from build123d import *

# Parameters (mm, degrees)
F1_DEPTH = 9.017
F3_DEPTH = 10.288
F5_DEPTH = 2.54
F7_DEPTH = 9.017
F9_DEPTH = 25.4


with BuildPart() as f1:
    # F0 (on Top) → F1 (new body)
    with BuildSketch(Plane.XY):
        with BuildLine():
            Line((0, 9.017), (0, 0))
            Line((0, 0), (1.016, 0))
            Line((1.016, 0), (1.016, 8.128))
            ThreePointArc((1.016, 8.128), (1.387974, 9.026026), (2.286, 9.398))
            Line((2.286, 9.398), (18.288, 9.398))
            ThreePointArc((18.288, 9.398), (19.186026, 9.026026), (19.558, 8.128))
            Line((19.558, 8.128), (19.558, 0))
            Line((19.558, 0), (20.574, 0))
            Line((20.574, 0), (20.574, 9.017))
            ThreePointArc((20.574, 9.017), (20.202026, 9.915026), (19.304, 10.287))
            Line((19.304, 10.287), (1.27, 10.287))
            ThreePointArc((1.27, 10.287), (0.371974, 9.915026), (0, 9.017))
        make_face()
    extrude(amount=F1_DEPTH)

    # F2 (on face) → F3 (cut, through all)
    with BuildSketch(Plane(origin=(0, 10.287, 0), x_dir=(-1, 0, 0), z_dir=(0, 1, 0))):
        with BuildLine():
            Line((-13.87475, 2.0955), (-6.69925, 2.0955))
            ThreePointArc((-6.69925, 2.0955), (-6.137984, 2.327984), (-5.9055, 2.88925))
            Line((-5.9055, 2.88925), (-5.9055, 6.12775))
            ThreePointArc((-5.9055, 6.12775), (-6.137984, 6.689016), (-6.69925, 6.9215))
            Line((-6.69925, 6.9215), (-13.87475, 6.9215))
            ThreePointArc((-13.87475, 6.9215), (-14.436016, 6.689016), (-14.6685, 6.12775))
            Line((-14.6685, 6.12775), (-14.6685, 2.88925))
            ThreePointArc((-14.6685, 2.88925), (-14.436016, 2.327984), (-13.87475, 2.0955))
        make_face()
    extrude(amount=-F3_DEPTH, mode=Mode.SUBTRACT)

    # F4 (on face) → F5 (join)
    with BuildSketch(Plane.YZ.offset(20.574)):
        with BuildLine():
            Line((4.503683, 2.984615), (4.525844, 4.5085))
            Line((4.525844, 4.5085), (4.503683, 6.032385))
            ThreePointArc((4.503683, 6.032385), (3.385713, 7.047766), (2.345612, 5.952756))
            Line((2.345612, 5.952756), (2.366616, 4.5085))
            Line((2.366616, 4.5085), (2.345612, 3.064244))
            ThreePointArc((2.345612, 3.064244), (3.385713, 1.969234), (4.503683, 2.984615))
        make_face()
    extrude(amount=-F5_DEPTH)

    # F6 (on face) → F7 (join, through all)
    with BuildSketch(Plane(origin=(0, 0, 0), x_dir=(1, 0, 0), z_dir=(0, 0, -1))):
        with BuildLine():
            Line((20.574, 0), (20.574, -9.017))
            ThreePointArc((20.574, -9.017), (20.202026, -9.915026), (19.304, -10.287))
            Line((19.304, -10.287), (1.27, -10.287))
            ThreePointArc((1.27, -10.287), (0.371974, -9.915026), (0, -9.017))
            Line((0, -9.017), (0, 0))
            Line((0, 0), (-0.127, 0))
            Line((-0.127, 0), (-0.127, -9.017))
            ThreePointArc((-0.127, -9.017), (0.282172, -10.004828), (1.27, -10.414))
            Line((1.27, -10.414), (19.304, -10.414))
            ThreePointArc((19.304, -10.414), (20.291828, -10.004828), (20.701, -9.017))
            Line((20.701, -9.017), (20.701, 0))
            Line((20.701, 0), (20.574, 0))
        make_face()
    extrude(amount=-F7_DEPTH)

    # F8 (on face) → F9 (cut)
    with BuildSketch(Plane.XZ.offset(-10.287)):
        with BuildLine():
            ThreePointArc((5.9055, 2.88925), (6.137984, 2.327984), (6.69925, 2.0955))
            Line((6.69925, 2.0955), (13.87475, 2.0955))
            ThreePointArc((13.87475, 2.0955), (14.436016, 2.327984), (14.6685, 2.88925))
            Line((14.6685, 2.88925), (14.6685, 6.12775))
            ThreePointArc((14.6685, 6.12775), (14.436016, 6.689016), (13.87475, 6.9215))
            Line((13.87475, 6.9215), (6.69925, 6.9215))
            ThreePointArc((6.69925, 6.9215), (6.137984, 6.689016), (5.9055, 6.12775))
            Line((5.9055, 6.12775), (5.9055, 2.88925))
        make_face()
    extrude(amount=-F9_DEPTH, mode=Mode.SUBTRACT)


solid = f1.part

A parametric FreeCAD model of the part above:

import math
import FreeCAD as App
import Part
import Sketcher

V = App.Vector
Q = App.Units.Quantity

doc = App.newDocument("Part")
body = doc.addObject("PartDesign::Body", "Body")

# Sketch on XY plane
sketch1 = body.newObject("Sketcher::SketchObject", "Sketch")
sketch1.AttachmentSupport = (doc.getObject("XY_Plane"), [""])
sketch1.MapMode = "FlatFace"
sketch1.addGeometry(Part.LineSegment(V(0, 9.017, 0), V(0, 0, 0)), False)
sketch1.addGeometry(Part.LineSegment(V(0, 0, 0), V(1.016, 0, 0)), False)
sketch1.addGeometry(Part.LineSegment(V(1.016, 0, 0), V(1.016, 8.128, 0)), False)
sketch1.addGeometry(Part.ArcOfCircle(Part.Circle(V(2.285999, 8.128001, 0), V(0, 0, 1), 1.269999), math.radians(89.99994), math.radians(180.00006)), False)
sketch1.addGeometry(Part.LineSegment(V(2.286, 9.398, 0), V(18.288, 9.398, 0)), False)
sketch1.addGeometry(Part.ArcOfCircle(Part.Circle(V(18.288001, 8.128001, 0), V(0, 0, 1), 1.269999), math.radians(-0.00006), math.radians(90.00006)), False)
sketch1.addGeometry(Part.LineSegment(V(19.558, 8.128, 0), V(19.558, 0, 0)), False)
sketch1.addGeometry(Part.LineSegment(V(19.558, 0, 0), V(20.574, 0, 0)), False)
sketch1.addGeometry(Part.LineSegment(V(20.574, 0, 0), V(20.574, 9.017, 0)), False)
sketch1.addGeometry(Part.ArcOfCircle(Part.Circle(V(19.304001, 9.017001, 0), V(0, 0, 1), 1.269999), math.radians(-0.00006), math.radians(90.00006)), False)
sketch1.addGeometry(Part.LineSegment(V(19.304, 10.287, 0), V(1.27, 10.287, 0)), False)
sketch1.addGeometry(Part.ArcOfCircle(Part.Circle(V(1.269999, 9.017001, 0), V(0, 0, 1), 1.269999), math.radians(89.99994), math.radians(180.00006)), False)
sketch1.addConstraint(Sketcher.Constraint("Coincident", 0, 2, 1, 1))
sketch1.addConstraint(Sketcher.Constraint("Coincident", 1, 2, 2, 1))
sketch1.addConstraint(Sketcher.Constraint("Tangent", 2, 2, 3, 2))
sketch1.addConstraint(Sketcher.Constraint("Tangent", 3, 1, 4, 1))
sketch1.addConstraint(Sketcher.Constraint("Tangent", 4, 2, 5, 2))
sketch1.addConstraint(Sketcher.Constraint("Tangent", 5, 1, 6, 1))
sketch1.addConstraint(Sketcher.Constraint("Coincident", 6, 2, 7, 1))
sketch1.addConstraint(Sketcher.Constraint("Coincident", 7, 2, 8, 1))
sketch1.addConstraint(Sketcher.Constraint("Tangent", 8, 2, 9, 1))
sketch1.addConstraint(Sketcher.Constraint("Tangent", 9, 2, 10, 1))
sketch1.addConstraint(Sketcher.Constraint("Tangent", 10, 2, 11, 1))
sketch1.addConstraint(Sketcher.Constraint("Tangent", 11, 2, 0, 1))
sketch1.addConstraint(Sketcher.Constraint("Vertical", 0))
sketch1.addConstraint(Sketcher.Constraint("Horizontal", 1))
sketch1.addConstraint(Sketcher.Constraint("Vertical", 2))
sketch1.addConstraint(Sketcher.Constraint("Horizontal", 4))
sketch1.addConstraint(Sketcher.Constraint("Vertical", 6))
sketch1.addConstraint(Sketcher.Constraint("Horizontal", 7))
sketch1.addConstraint(Sketcher.Constraint("Vertical", 8))
sketch1.addConstraint(Sketcher.Constraint("Horizontal", 10))
sketch1.addConstraint(Sketcher.Constraint("Coincident", 0, 2, -1, 1))
sketch1.addConstraint(Sketcher.Constraint("Equal", 3, 5))
sketch1.addConstraint(Sketcher.Constraint("Equal", 5, 9))
sketch1.addConstraint(Sketcher.Constraint("Equal", 9, 11))
sketch1.addConstraint(Sketcher.Constraint("PointOnObject", 6, 2, -1))
sketch1.addConstraint(Sketcher.Constraint("Equal", 1, 7))
sketch1.addConstraint(Sketcher.Constraint("Radius", 3, Q("0.0499999 in")))
sketch1.addConstraint(Sketcher.Constraint("DistanceX", 1, 1, 1, 2, Q("0.04 in")))
sketch1.addConstraint(Sketcher.Constraint("DistanceX", 4, 1, 4, 2, Q("0.63 in")))
sketch1.addConstraint(Sketcher.Constraint("DistanceY", 2, 1, 2, 2, Q("0.32 in")))
sketch1.addConstraint(Sketcher.Constraint("DistanceY", 0, 2, 0, 1, Q("0.355 in")))
pad1 = body.newObject("PartDesign::Pad", "Pad")
pad1.Profile = sketch1
pad1.Length = Q("0.355 in")

# Sketch on XZ plane
sketch2 = body.newObject("Sketcher::SketchObject", "Sketch001")
sketch2.AttachmentSupport = (doc.getObject("XZ_Plane"), [""])
sketch2.MapMode = "FlatFace"
sketch2.AttachmentOffset = App.Placement(V(0, 0, -0.405 * 25.4), App.Rotation())
sketch2.addGeometry(Part.LineSegment(V(13.87475, 2.0955, 0), V(6.69925, 2.0955, 0)), False)
sketch2.addGeometry(Part.ArcOfCircle(Part.Circle(V(6.69925, 2.88925, 0), V(0, 0, 1), 0.79375), math.radians(-179.999998), math.radians(-90.000002)), False)
sketch2.addGeometry(Part.LineSegment(V(5.9055, 2.88925, 0), V(5.9055, 6.12775, 0)), False)
sketch2.addGeometry(Part.ArcOfCircle(Part.Circle(V(6.69925, 6.12775, 0), V(0, 0, 1), 0.79375), math.radians(90.000002), math.radians(179.999998)), False)
sketch2.addGeometry(Part.LineSegment(V(6.69925, 6.9215, 0), V(13.87475, 6.9215, 0)), False)
sketch2.addGeometry(Part.ArcOfCircle(Part.Circle(V(13.87475, 6.12775, 0), V(0, 0, 1), 0.79375), math.radians(0.000002), math.radians(89.999998)), False)
sketch2.addGeometry(Part.LineSegment(V(14.6685, 6.12775, 0), V(14.6685, 2.88925, 0)), False)
sketch2.addGeometry(Part.ArcOfCircle(Part.Circle(V(13.87475, 2.88925, 0), V(0, 0, 1), 0.79375), math.radians(-89.999998), math.radians(-0.000002)), False)
sketch2.addConstraint(Sketcher.Constraint("Tangent", 0, 2, 1, 2))
sketch2.addConstraint(Sketcher.Constraint("Tangent", 1, 1, 2, 1))
sketch2.addConstraint(Sketcher.Constraint("Tangent", 2, 2, 3, 2))
sketch2.addConstraint(Sketcher.Constraint("Tangent", 3, 1, 4, 1))
sketch2.addConstraint(Sketcher.Constraint("Tangent", 4, 2, 5, 2))
sketch2.addConstraint(Sketcher.Constraint("Tangent", 5, 1, 6, 1))
sketch2.addConstraint(Sketcher.Constraint("Tangent", 6, 2, 7, 2))
sketch2.addConstraint(Sketcher.Constraint("Tangent", 7, 1, 0, 1))
sketch2.addConstraint(Sketcher.Constraint("Horizontal", 0))
sketch2.addConstraint(Sketcher.Constraint("Vertical", 2))
sketch2.addConstraint(Sketcher.Constraint("Horizontal", 4))
sketch2.addConstraint(Sketcher.Constraint("Vertical", 6))
sketch2.addConstraint(Sketcher.Constraint("Equal", 1, 3))
sketch2.addConstraint(Sketcher.Constraint("Equal", 3, 5))
sketch2.addConstraint(Sketcher.Constraint("Equal", 5, 7))
sketch2.addConstraint(Sketcher.Constraint("Radius", 1, Q("0.03125 in")))
sketch2.addConstraint(Sketcher.Constraint("DistanceY", 0, 2, 3, 1, Q("0.19 in")))
sketch2.addConstraint(Sketcher.Constraint("DistanceX", 0, 2, 0, 1, Q("0.2825 in")))
sketch2.addConstraint(Sketcher.Constraint("DistanceY", -1, 1, 0, 2, Q("0.0825 in")))
sketch2.addConstraint(Sketcher.Constraint("DistanceX", -1, 1, 1, 1, Q("0.2325 in")))
pocket1 = body.newObject("PartDesign::Pocket", "Pocket")
pocket1.Profile = sketch2
pocket1.Type = "ThroughAll"
pocket1.Reversed = True

# Sketch on YZ plane
sketch3 = body.newObject("Sketcher::SketchObject", "Sketch002")
sketch3.AttachmentSupport = (doc.getObject("YZ_Plane"), [""])
sketch3.MapMode = "FlatFace"
sketch3.AttachmentOffset = App.Placement(V(0, 0, 0.81 * 25.4), App.Rotation())
sketch3.addGeometry(Part.LineSegment(V(4.503683, 2.984615, 0), V(4.525844, 4.5085, 0)), False)
sketch3.addGeometry(Part.LineSegment(V(4.525844, 4.5085, 0), V(4.503683, 6.032385, 0)), False)
sketch3.addGeometry(Part.ArcOfCircle(Part.Circle(V(3.425537, 5.968461, 0), V(0, 0, 1), 1.080039), math.radians(3.393124), math.radians(180.833185)), False)
sketch3.addGeometry(Part.LineSegment(V(2.345612, 5.952756, 0), V(2.366616, 4.5085, 0)), False)
sketch3.addGeometry(Part.LineSegment(V(2.366616, 4.5085, 0), V(2.345612, 3.064244, 0)), False)
sketch3.addGeometry(Part.ArcOfCircle(Part.Circle(V(3.425537, 3.048539, 0), V(0, 0, 1), 1.080039), math.radians(179.166815), math.radians(356.606876)), False)
sketch3.addConstraint(Sketcher.Constraint("Coincident", 0, 2, 1, 1))
sketch3.addConstraint(Sketcher.Constraint("Coincident", 1, 2, 2, 1))
sketch3.addConstraint(Sketcher.Constraint("Tangent", 2, 2, 3, 1))
sketch3.addConstraint(Sketcher.Constraint("Coincident", 3, 2, 4, 1))
sketch3.addConstraint(Sketcher.Constraint("Tangent", 4, 2, 5, 1))
sketch3.addConstraint(Sketcher.Constraint("Coincident", 5, 2, 0, 1))
sketch3.addConstraint(Sketcher.Constraint("Equal", 2, 5))
sketch3.addConstraint(Sketcher.Constraint("Parallel", 1, 3))
sketch3.addConstraint(Sketcher.Constraint("Parallel", 0, 4))
sketch3.addConstraint(Sketcher.Constraint("Horizontal", 0, 2, 3, 2))
sketch3.addConstraint(Sketcher.Constraint("Vertical", 2, 3, 5, 3))
sketch3.addConstraint(Sketcher.Constraint("Equal", 0, 1))
sketch3.addConstraint(Sketcher.Constraint("Radius", 2, 1.080039))
sketch3.addConstraint(Sketcher.Constraint("DistanceY", -1, 1, 0, 2, Q("0.1775 in")))
sketch3.addConstraint(Sketcher.Constraint("Distance", 3, 1.444409))
sketch3.addConstraint(Sketcher.Constraint("DistanceY", -1, 1, 2, 3, 5.968461))
sketch3.addConstraint(Sketcher.Constraint("DistanceX", -1, 1, 2, 2, 2.345612))
sketch3.addConstraint(Sketcher.Constraint("DistanceX", 1, 2, 0, 2, 0.022161))
pad2 = body.newObject("PartDesign::Pad", "Pad001")
pad2.Profile = sketch3
pad2.Length = Q("0.1 in")
pad2.Reversed = True

# Sketch on XY plane
sketch4 = body.newObject("Sketcher::SketchObject", "Sketch003")
sketch4.AttachmentSupport = (doc.getObject("XY_Plane"), [""])
sketch4.MapMode = "FlatFace"
sketch4.addGeometry(Part.LineSegment(V(20.574, 0, 0), V(20.574, 9.017, 0)), False)
sketch4.addGeometry(Part.ArcOfCircle(Part.Circle(V(19.304001, 9.017001, 0), V(0, 0, 1), 1.269999), math.radians(-0.00006), math.radians(90.00006)), False)
sketch4.addGeometry(Part.LineSegment(V(19.304, 10.287, 0), V(1.27, 10.287, 0)), False)
sketch4.addGeometry(Part.ArcOfCircle(Part.Circle(V(1.269999, 9.017001, 0), V(0, 0, 1), 1.269999), math.radians(89.99994), math.radians(180.00006)), False)
sketch4.addGeometry(Part.LineSegment(V(0, 9.017, 0), V(0, 0, 0)), False)
sketch4.addGeometry(Part.LineSegment(V(0, 0, 0), V(-0.127, 0, 0)), False)
sketch4.addGeometry(Part.LineSegment(V(-0.127, 0, 0), V(-0.127, 9.017, 0)), False)
sketch4.addGeometry(Part.ArcOfCircle(Part.Circle(V(1.270001, 9.016999, 0), V(0, 0, 1), 1.397001), math.radians(90.000024), math.radians(179.999976)), False)
sketch4.addGeometry(Part.LineSegment(V(1.27, 10.414, 0), V(19.304, 10.414, 0)), False)
sketch4.addGeometry(Part.ArcOfCircle(Part.Circle(V(19.303999, 9.016999, 0), V(0, 0, 1), 1.397001), math.radians(0.000024), math.radians(89.999976)), False)
sketch4.addGeometry(Part.LineSegment(V(20.701, 9.017, 0), V(20.701, 0, 0)), False)
sketch4.addGeometry(Part.LineSegment(V(20.701, 0, 0), V(20.574, 0, 0)), False)
sketch4.addConstraint(Sketcher.Constraint("Tangent", 0, 2, 1, 1))
sketch4.addConstraint(Sketcher.Constraint("Tangent", 1, 2, 2, 1))
sketch4.addConstraint(Sketcher.Constraint("Tangent", 2, 2, 3, 1))
sketch4.addConstraint(Sketcher.Constraint("Tangent", 3, 2, 4, 1))
sketch4.addConstraint(Sketcher.Constraint("Coincident", 4, 2, 5, 1))
sketch4.addConstraint(Sketcher.Constraint("Coincident", 5, 2, 6, 1))
sketch4.addConstraint(Sketcher.Constraint("Tangent", 6, 2, 7, 2))
sketch4.addConstraint(Sketcher.Constraint("Tangent", 7, 1, 8, 1))
sketch4.addConstraint(Sketcher.Constraint("Tangent", 8, 2, 9, 2))
sketch4.addConstraint(Sketcher.Constraint("Tangent", 9, 1, 10, 1))
sketch4.addConstraint(Sketcher.Constraint("Coincident", 10, 2, 11, 1))
sketch4.addConstraint(Sketcher.Constraint("Coincident", 11, 2, 0, 1))
sketch4.addConstraint(Sketcher.Constraint("Vertical", 0))
sketch4.addConstraint(Sketcher.Constraint("Horizontal", 2))
sketch4.addConstraint(Sketcher.Constraint("Vertical", 4))
sketch4.addConstraint(Sketcher.Constraint("Horizontal", 5))
sketch4.addConstraint(Sketcher.Constraint("Vertical", 6))
sketch4.addConstraint(Sketcher.Constraint("Horizontal", 8))
sketch4.addConstraint(Sketcher.Constraint("Vertical", 10))
sketch4.addConstraint(Sketcher.Constraint("Horizontal", 11))
sketch4.addConstraint(Sketcher.Constraint("Coincident", 4, 2, -1, 1))
sketch4.addConstraint(Sketcher.Constraint("Coincident", 7, 3, 3, 3))
sketch4.addConstraint(Sketcher.Constraint("Coincident", 9, 3, 1, 3))
sketch4.addConstraint(Sketcher.Constraint("Equal", 1, 3))
sketch4.addConstraint(Sketcher.Constraint("PointOnObject", 10, 2, -1))
sketch4.addConstraint(Sketcher.Constraint("Radius", 1, Q("0.0499999 in")))
sketch4.addConstraint(Sketcher.Constraint("Radius", 7, Q("0.055 in")))
sketch4.addConstraint(Sketcher.Constraint("DistanceX", 2, 2, 2, 1, Q("0.71 in")))
sketch4.addConstraint(Sketcher.Constraint("DistanceY", 0, 1, 0, 2, Q("0.355 in")))
pad3 = body.newObject("PartDesign::Pad", "Pad002")
pad3.Profile = sketch4
pad3.Length = Q("0.355 in")

# Sketch on XZ plane
sketch5 = body.newObject("Sketcher::SketchObject", "Sketch004")
sketch5.AttachmentSupport = (doc.getObject("XZ_Plane"), [""])
sketch5.MapMode = "FlatFace"
sketch5.AttachmentOffset = App.Placement(V(0, 0, -0.405 * 25.4), App.Rotation())
sketch5.addGeometry(Part.ArcOfCircle(Part.Circle(V(6.69925, 2.88925, 0), V(0, 0, 1), 0.79375), math.radians(-179.999998), math.radians(-90.000002)), False)
sketch5.addGeometry(Part.LineSegment(V(6.69925, 2.0955, 0), V(13.87475, 2.0955, 0)), False)
sketch5.addGeometry(Part.ArcOfCircle(Part.Circle(V(13.87475, 2.88925, 0), V(0, 0, 1), 0.79375), math.radians(-89.999998), math.radians(-0.000002)), False)
sketch5.addGeometry(Part.LineSegment(V(14.6685, 2.88925, 0), V(14.6685, 6.12775, 0)), False)
sketch5.addGeometry(Part.ArcOfCircle(Part.Circle(V(13.87475, 6.12775, 0), V(0, 0, 1), 0.79375), math.radians(0.000002), math.radians(89.999998)), False)
sketch5.addGeometry(Part.LineSegment(V(13.87475, 6.9215, 0), V(6.69925, 6.9215, 0)), False)
sketch5.addGeometry(Part.ArcOfCircle(Part.Circle(V(6.69925, 6.12775, 0), V(0, 0, 1), 0.79375), math.radians(90.000002), math.radians(179.999998)), False)
sketch5.addGeometry(Part.LineSegment(V(5.9055, 6.12775, 0), V(5.9055, 2.88925, 0)), False)
sketch5.addConstraint(Sketcher.Constraint("Tangent", 0, 2, 1, 1))
sketch5.addConstraint(Sketcher.Constraint("Tangent", 1, 2, 2, 1))
sketch5.addConstraint(Sketcher.Constraint("Tangent", 2, 2, 3, 1))
sketch5.addConstraint(Sketcher.Constraint("Tangent", 3, 2, 4, 1))
sketch5.addConstraint(Sketcher.Constraint("Tangent", 4, 2, 5, 1))
sketch5.addConstraint(Sketcher.Constraint("Tangent", 5, 2, 6, 1))
sketch5.addConstraint(Sketcher.Constraint("Tangent", 6, 2, 7, 1))
sketch5.addConstraint(Sketcher.Constraint("Tangent", 7, 2, 0, 1))
sketch5.addConstraint(Sketcher.Constraint("Horizontal", 1))
sketch5.addConstraint(Sketcher.Constraint("Vertical", 3))
sketch5.addConstraint(Sketcher.Constraint("Horizontal", 5))
sketch5.addConstraint(Sketcher.Constraint("Vertical", 7))
sketch5.addConstraint(Sketcher.Constraint("Equal", 0, 2))
sketch5.addConstraint(Sketcher.Constraint("Equal", 2, 4))
sketch5.addConstraint(Sketcher.Constraint("Equal", 4, 6))
sketch5.addConstraint(Sketcher.Constraint("Radius", 0, Q("0.03125 in")))
sketch5.addConstraint(Sketcher.Constraint("DistanceY", 1, 2, 4, 2, Q("0.19 in")))
sketch5.addConstraint(Sketcher.Constraint("DistanceX", 1, 1, 1, 2, Q("0.2825 in")))
sketch5.addConstraint(Sketcher.Constraint("DistanceY", -1, 1, 0, 2, Q("0.0825 in")))
sketch5.addConstraint(Sketcher.Constraint("DistanceX", -1, 1, 2, 2, Q("0.5775 in")))
pocket2 = body.newObject("PartDesign::Pocket", "Pocket001")
pocket2.Profile = sketch5
pocket2.Length = Q("1 in")

doc.recompute()
